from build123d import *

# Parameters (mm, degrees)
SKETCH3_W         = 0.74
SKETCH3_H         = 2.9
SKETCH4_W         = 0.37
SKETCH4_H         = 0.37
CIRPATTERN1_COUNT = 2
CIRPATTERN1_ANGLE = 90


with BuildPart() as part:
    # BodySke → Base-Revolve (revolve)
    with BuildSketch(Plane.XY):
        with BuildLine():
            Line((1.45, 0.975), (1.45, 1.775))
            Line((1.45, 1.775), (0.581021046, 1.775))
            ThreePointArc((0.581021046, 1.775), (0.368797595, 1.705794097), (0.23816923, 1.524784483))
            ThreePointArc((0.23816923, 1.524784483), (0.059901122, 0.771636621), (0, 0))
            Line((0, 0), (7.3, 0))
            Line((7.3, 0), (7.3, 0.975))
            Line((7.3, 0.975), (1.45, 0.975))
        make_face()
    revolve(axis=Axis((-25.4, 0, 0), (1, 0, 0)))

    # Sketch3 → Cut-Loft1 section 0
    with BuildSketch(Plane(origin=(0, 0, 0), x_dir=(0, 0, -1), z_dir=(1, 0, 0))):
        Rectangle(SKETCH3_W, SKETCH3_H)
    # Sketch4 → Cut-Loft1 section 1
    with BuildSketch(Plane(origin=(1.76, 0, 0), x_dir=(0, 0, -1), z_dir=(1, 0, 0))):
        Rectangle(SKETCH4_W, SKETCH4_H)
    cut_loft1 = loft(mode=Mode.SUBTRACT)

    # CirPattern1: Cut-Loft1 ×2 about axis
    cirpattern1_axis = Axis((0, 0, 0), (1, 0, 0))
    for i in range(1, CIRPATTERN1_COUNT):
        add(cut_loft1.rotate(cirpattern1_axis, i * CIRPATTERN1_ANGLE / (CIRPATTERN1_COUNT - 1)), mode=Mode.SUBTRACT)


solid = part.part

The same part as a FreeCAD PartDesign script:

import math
import FreeCAD as App
import Part
import Sketcher

V = App.Vector
Q = App.Units.Quantity


def add_polygon(sketch, points):
    """Adds a closed chain of lines whose ends are joined by coincident constraints."""
    first, n = sketch.GeometryCount, len(points)
    for a, b in zip(points, points[1:] + points[:1]):
        sketch.addGeometry(Part.LineSegment(App.Vector(*a, 0), App.Vector(*b, 0)), False)
    for i in range(n):
        sketch.addConstraint(Sketcher.Constraint("Coincident", first + i, 2, first + (i + 1) % n, 1))

doc = App.newDocument("Part")
body = doc.addObject("PartDesign::Body", "Body")

# Sketch on XY plane
sketch1 = body.newObject("Sketcher::SketchObject", "Sketch")
sketch1.AttachmentSupport = (doc.getObject("XY_Plane"), [""])
sketch1.MapMode = "FlatFace"
sketch1.addGeometry([
    Part.LineSegment(V(1.45, 0.97, 0), V(1.45, 1.77, 0)),  # 0
    Part.LineSegment(V(1.45, 1.77, 0), V(0.58, 1.77, 0)),  # 1
    Part.ArcOfCircle(Part.Circle(V(0.58, 1.41, 0), V(0, 0, 1), 0.36), math.radians(90), math.radians(162)),  # 2
    Part.ArcOfCircle(Part.Circle(V(5, 0, 0), V(0, 0, 1), 5), math.radians(162.24), math.radians(180)),  # 3
    Part.LineSegment(V(0, 0, 0), V(7.3, 0, 0)),  # 4
    Part.LineSegment(V(7.3, 0, 0), V(7.3, 0.97, 0)),  # 5
    Part.LineSegment(V(7.3, 0.97, 0), V(1.45, 0.97, 0)),  # 6
], False)
sketch1.addConstraint([
    Sketcher.Constraint("Coincident", 0, 2, 1, 1),
    Sketcher.Constraint("Tangent", 1, 2, 2, 1),
    Sketcher.Constraint("Tangent", 2, 2, 3, 1),
    Sketcher.Constraint("Coincident", 3, 2, 4, 1),
    Sketcher.Constraint("Coincident", 4, 2, 5, 1),
    Sketcher.Constraint("Coincident", 5, 2, 6, 1),
    Sketcher.Constraint("Coincident", 6, 2, 0, 1),
    Sketcher.Constraint("Vertical", 0),
    Sketcher.Constraint("Horizontal", 1),
    Sketcher.Constraint("Horizontal", 4),
    Sketcher.Constraint("Vertical", 5),
    Sketcher.Constraint("Horizontal", 6),
    Sketcher.Constraint("Coincident", 3, 2, -1, 1),
    Sketcher.Constraint("PointOnObject", 3, 3, -1),
    Sketcher.Constraint("Radius", 3, Q("5 mm")),
    Sketcher.Constraint("Radius", 2, Q("0.36 mm")),
    Sketcher.Constraint("DistanceX", 4, 1, 4, 2, Q("7.3 mm")),
    Sketcher.Constraint("DistanceY", 0, 1, 0, 2, Q("0.8 mm")),
    Sketcher.Constraint("DistanceX", 6, 2, 6, 1, Q("5.85 mm")),
    Sketcher.Constraint("DistanceY", 5, 1, 5, 2, Q("0.975 mm")),
])
revolution = body.newObject("PartDesign::Revolution", "Revolution")
revolution.Profile = sketch1
revolution.ReferenceAxis = (sketch1, ["H_Axis"])
revolution.Angle = 360

# Sketch on YZ plane
sketch2 = body.newObject("Sketcher::SketchObject", "Sketch001")
sketch2.AttachmentSupport = (doc.getObject("YZ_Plane"), [""])
sketch2.MapMode = "FlatFace"
add_polygon(sketch2, [(1.4, 0.4), (-1.4, 0.4), (-1.4, -0.4), (1.4, -0.4)])  # lines 0-3
sketch2.addConstraint([
    Sketcher.Constraint("Horizontal", 0),
    Sketcher.Constraint("Vertical", 1),
    Sketcher.Constraint("Horizontal", 2),
    Sketcher.Constraint("Vertical", 3),
    Sketcher.Constraint("Symmetric", 0, 2, 2, 2, -1, 1),
    Sketcher.Constraint("DistanceX", 0, 2, 0, 1, Q("2.9 mm")),
    Sketcher.Constraint("DistanceY", 1, 2, 1, 1, Q("0.74 mm")),
])

# Sketch on YZ plane
sketch3 = body.newObject("Sketcher::SketchObject", "Sketch002")
sketch3.AttachmentSupport = (doc.getObject("YZ_Plane"), [""])
sketch3.MapMode = "FlatFace"
sketch3.AttachmentOffset = App.Placement(V(0, 0, 1.76), App.Rotation())
add_polygon(sketch3, [(0.18, 0.18), (-0.18, 0.18), (-0.18, -0.18), (0.18, -0.18)])  # lines 0-3
sketch3.addConstraint([
    Sketcher.Constraint("Horizontal", 0),
    Sketcher.Constraint("Vertical", 1),
    Sketcher.Constraint("Horizontal", 2),
    Sketcher.Constraint("Vertical", 3),
    Sketcher.Constraint("Symmetric", 0, 2, 2, 2, -1, 1),
    Sketcher.Constraint("Equal", 2, 1),
    Sketcher.Constraint("DistanceX", 0, 2, 0, 1, Q("0.37 mm")),
])

subtractiveloft = body.newObject("PartDesign::SubtractiveLoft", "SubtractiveLoft")
subtractiveloft.Profile = sketch2
subtractiveloft.Sections = [sketch3]
doc.recompute()

polarpattern = body.newObject("PartDesign::PolarPattern", "PolarPattern")
polarpattern.Originals = [subtractiveloft]
polarpattern.Axis = (doc.getObject("X_Axis"), [""])
polarpattern.Angle = 90
polarpattern.Occurrences = 2
body.Tip = polarpattern

doc.recompute()
